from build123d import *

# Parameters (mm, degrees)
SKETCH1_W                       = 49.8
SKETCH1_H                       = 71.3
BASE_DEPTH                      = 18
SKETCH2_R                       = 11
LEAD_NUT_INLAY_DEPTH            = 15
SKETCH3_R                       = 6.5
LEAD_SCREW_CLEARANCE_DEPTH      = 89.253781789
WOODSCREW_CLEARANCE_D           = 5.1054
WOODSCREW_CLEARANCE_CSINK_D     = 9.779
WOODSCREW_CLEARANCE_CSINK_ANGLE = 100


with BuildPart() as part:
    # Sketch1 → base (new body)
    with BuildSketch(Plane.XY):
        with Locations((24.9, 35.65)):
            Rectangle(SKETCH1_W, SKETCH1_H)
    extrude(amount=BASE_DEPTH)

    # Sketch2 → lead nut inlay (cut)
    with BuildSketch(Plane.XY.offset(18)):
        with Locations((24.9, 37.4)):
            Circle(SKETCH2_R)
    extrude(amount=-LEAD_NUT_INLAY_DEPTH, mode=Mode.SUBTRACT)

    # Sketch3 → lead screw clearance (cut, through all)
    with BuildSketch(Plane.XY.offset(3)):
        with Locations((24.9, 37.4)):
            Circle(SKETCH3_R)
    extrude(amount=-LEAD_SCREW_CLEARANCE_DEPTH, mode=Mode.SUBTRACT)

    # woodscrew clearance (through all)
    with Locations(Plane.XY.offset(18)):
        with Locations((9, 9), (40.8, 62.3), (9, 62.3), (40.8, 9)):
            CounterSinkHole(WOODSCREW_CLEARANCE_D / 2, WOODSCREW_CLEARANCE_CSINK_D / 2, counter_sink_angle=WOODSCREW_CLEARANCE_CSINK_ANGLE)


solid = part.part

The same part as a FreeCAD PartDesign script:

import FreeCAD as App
import Part
import Sketcher


def add_polygon(sketch, points):
    """Adds a closed chain of lines whose ends are joined by coincident constraints."""
    first, n = sketch.GeometryCount, len(points)
    for a, b in zip(points, points[1:] + points[:1]):
        sketch.addGeometry(Part.LineSegment(App.Vector(*a, 0), App.Vector(*b, 0)), False)
    for i in range(n):
        sketch.addConstraint(Sketcher.Constraint("Coincident", first + i, 2, first + (i + 1) % n, 1))

doc = App.newDocument("Part")
body = doc.addObject("PartDesign::Body", "Body")

sketch1 = doc.addObject("Sketcher::SketchObject", "Sketch")
body.addObject(sketch1)
sketch1.AttachmentSupport = (doc.XY_Plane, [""])
sketch1.MapMode = "FlatFace"
add_polygon(sketch1, [(0, 71), (0, 0), (50, 0), (50, 71)])
sketch1.addConstraint([
    Sketcher.Constraint("Vertical", 0),
    Sketcher.Constraint("Horizontal", 1),
    Sketcher.Constraint("Vertical", 2),
    Sketcher.Constraint("Horizontal", 3),
    Sketcher.Constraint("Coincident", 0, 2, -1, 1),
    Sketcher.Constraint("DistanceX", 1, 1, 1, 2, 49.8),
    Sketcher.Constraint("DistanceY", 0, 2, 0, 1, 71.3),
])
pad1 = doc.addObject("PartDesign::Pad", "Pad")
body.addObject(pad1)
pad1.Profile = sketch1
pad1.Length = 18

sketch2 = doc.addObject("Sketcher::SketchObject", "Sketch001")
body.addObject(sketch2)
sketch2.AttachmentSupport = (doc.XY_Plane, [""])
sketch2.MapMode = "FlatFace"
sketch2.AttachmentOffset = App.Placement(App.Vector(0, 0, 18), App.Rotation())
sketch2.addGeometry(Part.Circle(App.Vector(25, 37, 0), App.Vector(0, 0, 1), 11), False)
sketch2.addConstraint([
    Sketcher.Constraint("Diameter", 0, 22.0),
    Sketcher.Constraint("DistanceX", -1, 1, 0, 3, 24.9),
    Sketcher.Constraint("DistanceY", -1, 1, 0, 3, 37.4),
])
pocket1 = doc.addObject("PartDesign::Pocket", "Pocket")
body.addObject(pocket1)
pocket1.Profile = sketch2
pocket1.Length = 15

sketch3 = doc.addObject("Sketcher::SketchObject", "Sketch002")
body.addObject(sketch3)
sketch3.AttachmentSupport = (doc.XY_Plane, [""])
sketch3.MapMode = "FlatFace"
sketch3.AttachmentOffset = App.Placement(App.Vector(0, 0, 3), App.Rotation())
sketch3.addGeometry(Part.Circle(App.Vector(25, 37, 0), App.Vector(0, 0, 1), 6), False)
sketch3.addConstraint([
    Sketcher.Constraint("Diameter", 0, 13.0),
    Sketcher.Constraint("DistanceX", -1, 1, 0, 3, 24.9),
    Sketcher.Constraint("DistanceY", -1, 1, 0, 3, 37.4),
])
pocket2 = doc.addObject("PartDesign::Pocket", "Pocket001")
body.addObject(pocket2)
pocket2.Profile = sketch3
pocket2.Type = "ThroughAll"

sketch4 = doc.addObject("Sketcher::SketchObject", "Sketch003")
body.addObject(sketch4)
sketch4.AttachmentSupport = (doc.XY_Plane, [""])
sketch4.MapMode = "FlatFace"
sketch4.AttachmentOffset = App.Placement(App.Vector(0, 0, 18), App.Rotation())
sketch4.addGeometry([
    Part.Circle(App.Vector(9, 9, 0), App.Vector(0, 0, 1), 2.6),
    Part.Circle(App.Vector(40.8, 62.3, 0), App.Vector(0, 0, 1), 2.6),
    Part.Circle(App.Vector(9, 62.3, 0), App.Vector(0, 0, 1), 2.6),
    Part.Circle(App.Vector(40.8, 9, 0), App.Vector(0, 0, 1), 2.6),
], False)
sketch4.addConstraint([
    Sketcher.Constraint("Equal", 0, 1),
    Sketcher.Constraint("Equal", 1, 2),
    Sketcher.Constraint("Equal", 2, 3),
    Sketcher.Constraint("Horizontal", 1, 3, 2, 3),
    Sketcher.Constraint("Horizontal", 0, 3, 3, 3),
    Sketcher.Constraint("Vertical", 0, 3, 2, 3),
    Sketcher.Constraint("Vertical", 1, 3, 3, 3),
    Sketcher.Constraint("DistanceX", -1, 1, 0, 3, 9.0),
    Sketcher.Constraint("DistanceY", -1, 1, 0, 3, 9.0),
    Sketcher.Constraint("Diameter", 0, 5.1054),
    Sketcher.Constraint("DistanceX", -1, 1, 1, 3, 40.8),
    Sketcher.Constraint("DistanceY", -1, 1, 1, 3, 62.3),
])
doc.recompute()
hole = doc.addObject("PartDesign::Hole", "Hole")
body.addObject(hole)
hole.Profile = sketch4
hole.ThreadType = "None"
hole.Diameter = 5.1054
hole.DepthType = "ThroughAll"
hole.HoleCutType = "Countersink"
hole.HoleCutDiameter = 9.779
hole.HoleCutCountersinkAngle = 100

doc.recompute()
